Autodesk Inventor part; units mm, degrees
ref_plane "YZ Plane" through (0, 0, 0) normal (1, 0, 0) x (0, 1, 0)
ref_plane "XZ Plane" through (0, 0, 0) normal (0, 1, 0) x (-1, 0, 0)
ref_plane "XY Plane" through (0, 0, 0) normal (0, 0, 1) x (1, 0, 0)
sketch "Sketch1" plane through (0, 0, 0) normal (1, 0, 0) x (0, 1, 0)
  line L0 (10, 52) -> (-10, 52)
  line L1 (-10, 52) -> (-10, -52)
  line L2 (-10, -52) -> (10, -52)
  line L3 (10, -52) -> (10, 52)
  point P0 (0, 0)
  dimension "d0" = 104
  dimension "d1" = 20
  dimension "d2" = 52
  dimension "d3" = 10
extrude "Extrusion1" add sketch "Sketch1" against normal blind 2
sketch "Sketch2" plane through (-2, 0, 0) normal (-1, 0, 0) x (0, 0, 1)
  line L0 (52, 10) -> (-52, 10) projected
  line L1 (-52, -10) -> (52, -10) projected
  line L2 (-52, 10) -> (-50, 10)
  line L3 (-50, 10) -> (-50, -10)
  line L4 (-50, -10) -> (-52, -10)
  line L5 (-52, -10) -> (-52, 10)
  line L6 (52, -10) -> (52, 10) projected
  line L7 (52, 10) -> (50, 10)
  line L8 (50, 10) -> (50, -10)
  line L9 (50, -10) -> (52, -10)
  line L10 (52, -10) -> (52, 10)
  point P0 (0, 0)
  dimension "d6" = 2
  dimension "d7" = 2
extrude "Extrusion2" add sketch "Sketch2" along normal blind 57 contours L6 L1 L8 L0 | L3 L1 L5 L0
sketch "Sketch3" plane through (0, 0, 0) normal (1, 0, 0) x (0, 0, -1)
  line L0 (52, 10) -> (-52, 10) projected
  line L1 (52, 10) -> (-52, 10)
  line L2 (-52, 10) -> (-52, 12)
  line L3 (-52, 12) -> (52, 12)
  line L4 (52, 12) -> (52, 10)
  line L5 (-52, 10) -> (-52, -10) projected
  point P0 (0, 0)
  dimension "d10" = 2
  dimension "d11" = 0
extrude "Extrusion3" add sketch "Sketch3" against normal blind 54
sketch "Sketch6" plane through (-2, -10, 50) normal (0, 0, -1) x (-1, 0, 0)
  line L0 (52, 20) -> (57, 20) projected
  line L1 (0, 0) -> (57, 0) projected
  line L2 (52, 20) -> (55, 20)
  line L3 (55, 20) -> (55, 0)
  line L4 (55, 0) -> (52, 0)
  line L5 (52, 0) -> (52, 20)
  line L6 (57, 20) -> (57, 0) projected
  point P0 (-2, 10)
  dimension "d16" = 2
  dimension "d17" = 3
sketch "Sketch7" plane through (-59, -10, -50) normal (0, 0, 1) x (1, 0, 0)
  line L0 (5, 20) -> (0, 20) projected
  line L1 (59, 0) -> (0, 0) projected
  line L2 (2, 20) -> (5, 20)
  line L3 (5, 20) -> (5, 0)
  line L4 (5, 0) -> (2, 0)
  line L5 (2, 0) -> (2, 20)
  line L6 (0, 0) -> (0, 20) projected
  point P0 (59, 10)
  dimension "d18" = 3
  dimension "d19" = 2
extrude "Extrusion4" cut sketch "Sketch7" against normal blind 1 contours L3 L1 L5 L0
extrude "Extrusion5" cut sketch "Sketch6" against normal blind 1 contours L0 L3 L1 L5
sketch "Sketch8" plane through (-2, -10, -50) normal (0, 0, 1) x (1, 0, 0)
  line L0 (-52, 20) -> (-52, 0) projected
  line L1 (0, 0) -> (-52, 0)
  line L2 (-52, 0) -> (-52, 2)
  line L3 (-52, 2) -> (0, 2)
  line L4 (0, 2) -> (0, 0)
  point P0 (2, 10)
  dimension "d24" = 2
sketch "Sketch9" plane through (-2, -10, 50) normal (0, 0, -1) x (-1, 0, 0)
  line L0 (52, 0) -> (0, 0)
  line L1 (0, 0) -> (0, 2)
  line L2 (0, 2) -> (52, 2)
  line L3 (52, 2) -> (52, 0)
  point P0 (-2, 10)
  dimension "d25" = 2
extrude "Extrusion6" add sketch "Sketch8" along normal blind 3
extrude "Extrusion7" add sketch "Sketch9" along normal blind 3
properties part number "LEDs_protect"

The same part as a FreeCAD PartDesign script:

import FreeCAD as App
import Part
import Sketcher
Q = App.Units.Quantity


def add_polygon(sketch, points):
    """Adds a closed chain of lines whose ends are joined by coincident constraints."""
    first, n = sketch.GeometryCount, len(points)
    for a, b in zip(points, points[1:] + points[:1]):
        sketch.addGeometry(Part.LineSegment(App.Vector(*a, 0), App.Vector(*b, 0)), False)
    for i in range(n):
        sketch.addConstraint(Sketcher.Constraint("Coincident", first + i, 2, first + (i + 1) % n, 1))

doc = App.newDocument("Part")
params = doc.addObject("Spreadsheet::Sheet", "Params")
for row, (alias, value) in enumerate([
    ("sketch1_width", "20 mm"),
    ("sketch1_height", "104 mm"),
    ("pad1_length", "2 mm"),
    ("sketch2_height", "2 mm"),
    ("sketch2_width", "20 mm"),
    ("pad2_length", "57 mm"),
    ("sketch3_width", "2 mm"),
    ("sketch3_height", "104 mm"),
    ("pad3_length", "54 mm"),
    ("sketch4_width", "3 mm"),
    ("sketch4_height", "20 mm"),
    ("pocket1_length", "1 mm"),
    ("sketch5_width", "3 mm"),
    ("sketch5_height", "20 mm"),
    ("pocket2_length", "1 mm"),
    ("sketch6_height", "2 mm"),
    ("sketch6_width", "52 mm"),
    ("pad4_length", "3 mm"),
    ("sketch7_height", "2 mm"),
    ("sketch7_width", "52 mm"),
    ("pad5_length", "3 mm"),
], start=1):
    params.set(f"A{row}", alias)
    params.set(f"B{row}", "=" + value)
    params.setAlias(f"B{row}", alias)

body = doc.addObject("PartDesign::Body", "Body")

sketch1 = body.newObject("Sketcher::SketchObject", "Sketch")
sketch1.AttachmentSupport = (doc.getObject("YZ_Plane"), [""])
sketch1.MapMode = "FlatFace"
add_polygon(sketch1, [(10, -52), (10, 52), (-10, 52), (-10, -52)])
sketch1.addConstraint([
    Sketcher.Constraint("Vertical", 0),
    Sketcher.Constraint("Horizontal", 1),
    Sketcher.Constraint("Vertical", 2),
    Sketcher.Constraint("Horizontal", 3),
    Sketcher.Constraint("Symmetric", 0, 2, 2, 2, -1, 1),
    Sketcher.Constraint("DistanceX", 1, 2, 1, 1, Q("20 mm")),
    Sketcher.Constraint("DistanceY", 0, 1, 0, 2, Q("104 mm")),
])
sketch1.setExpression("Constraints[9]", "Params.sketch1_width")
sketch1.setExpression("Constraints[10]", "Params.sketch1_height")
pad1 = body.newObject("PartDesign::Pad", "Pad")
pad1.Profile = sketch1
pad1.setExpression("Length", "Params.pad1_length")
pad1.Reversed = True

sketch2 = body.newObject("Sketcher::SketchObject", "Sketch001")
sketch2.AttachmentSupport = (doc.getObject("YZ_Plane"), [""])
sketch2.MapMode = "FlatFace"
sketch2.AttachmentOffset = App.Placement(App.Vector(0, 0, -2), App.Rotation())
add_polygon(sketch2, [(-10, 52), (10, 52), (10, 50), (-10, 50)])
add_polygon(sketch2, [(-10, -50), (10, -50), (10, -52), (-10, -52)])
sketch2.addConstraint([
    Sketcher.Constraint("Horizontal", 0),
    Sketcher.Constraint("Vertical", 1),
    Sketcher.Constraint("Horizontal", 2),
    Sketcher.Constraint("Vertical", 3),
    Sketcher.Constraint("Horizontal", 4),
    Sketcher.Constraint("Vertical", 5),
    Sketcher.Constraint("Horizontal", 6),
    Sketcher.Constraint("Vertical", 7),
    Sketcher.Constraint("Symmetric", 2, 2, 4, 2, -1, 1),
    Sketcher.Constraint("Symmetric", 0, 2, 6, 2, -1, 1),
    Sketcher.Constraint("Vertical", 1, 2, 4, 2),
    Sketcher.Constraint("DistanceY", 1, 2, 1, 1, Q("2 mm")),
    Sketcher.Constraint("DistanceX", 0, 1, 0, 2, Q("20 mm")),
    Sketcher.Constraint("DistanceY", -1, 1, 0, 2, Q("52 mm")),
])
sketch2.setExpression("Constraints[19]", "Params.sketch2_height")
sketch2.setExpression("Constraints[20]", "Params.sketch2_width")
pad2 = body.newObject("PartDesign::Pad", "Pad001")
pad2.Profile = sketch2
pad2.setExpression("Length", "Params.pad2_length")
pad2.Reversed = True

sketch3 = body.newObject("Sketcher::SketchObject", "Sketch002")
sketch3.AttachmentSupport = (doc.getObject("YZ_Plane"), [""])
sketch3.MapMode = "FlatFace"
add_polygon(sketch3, [(10, 52), (10, -52), (12, -52), (12, 52)])
sketch3.addConstraint([
    Sketcher.Constraint("Vertical", 0),
    Sketcher.Constraint("Horizontal", 1),
    Sketcher.Constraint("Vertical", 2),
    Sketcher.Constraint("Horizontal", 3),
    Sketcher.Constraint("DistanceX", 1, 1, 1, 2, Q("2 mm")),
    Sketcher.Constraint("DistanceY", 0, 2, 0, 1, Q("104 mm")),
    Sketcher.Constraint("DistanceX", -1, 1, 0, 2, Q("10 mm")),
    Sketcher.Constraint("DistanceY", 0, 2, -1, 1, Q("52 mm")),
])
sketch3.setExpression("Constraints[8]", "Params.sketch3_width")
sketch3.setExpression("Constraints[9]", "Params.sketch3_height")
pad3 = body.newObject("PartDesign::Pad", "Pad002")
pad3.Profile = sketch3
pad3.setExpression("Length", "Params.pad3_length")
pad3.Reversed = True

sketch4 = body.newObject("Sketcher::SketchObject", "Sketch003")
sketch4.AttachmentSupport = (doc.getObject("XY_Plane"), [""])
sketch4.MapMode = "FlatFace"
sketch4.AttachmentOffset = App.Placement(App.Vector(0, 0, -50), App.Rotation())
add_polygon(sketch4, [(-54, -10), (-54, 10), (-57, 10), (-57, -10)])
sketch4.addConstraint([
    Sketcher.Constraint("Vertical", 0),
    Sketcher.Constraint("Horizontal", 1),
    Sketcher.Constraint("Vertical", 2),
    Sketcher.Constraint("Horizontal", 3),
    Sketcher.Constraint("DistanceX", 1, 2, 1, 1, Q("3 mm")),
    Sketcher.Constraint("DistanceY", 0, 1, 0, 2, Q("20 mm")),
    Sketcher.Constraint("DistanceX", 0, 2, -1, 1, Q("54 mm")),
    Sketcher.Constraint("DistanceY", -1, 1, 0, 2, Q("10 mm")),
])
sketch4.setExpression("Constraints[8]", "Params.sketch4_width")
sketch4.setExpression("Constraints[9]", "Params.sketch4_height")
pocket1 = body.newObject("PartDesign::Pocket", "Pocket")
pocket1.Profile = sketch4
pocket1.setExpression("Length", "Params.pocket1_length")

sketch5 = body.newObject("Sketcher::SketchObject", "Sketch004")
sketch5.AttachmentSupport = (doc.getObject("XY_Plane"), [""])
sketch5.MapMode = "FlatFace"
sketch5.AttachmentOffset = App.Placement(App.Vector(0, 0, 50), App.Rotation())
add_polygon(sketch5, [(-57, 10), (-54, 10), (-54, -10), (-57, -10)])
sketch5.addConstraint([
    Sketcher.Constraint("Horizontal", 0),
    Sketcher.Constraint("Vertical", 1),
    Sketcher.Constraint("Horizontal", 2),
    Sketcher.Constraint("Vertical", 3),
    Sketcher.Constraint("DistanceX", 0, 1, 0, 2, Q("3 mm")),
    Sketcher.Constraint("DistanceY", 1, 2, 1, 1, Q("20 mm")),
    Sketcher.Constraint("DistanceX", 0, 2, -1, 1, Q("54 mm")),
    Sketcher.Constraint("DistanceY", -1, 1, 0, 2, Q("10 mm")),
])
sketch5.setExpression("Constraints[8]", "Params.sketch5_width")
sketch5.setExpression("Constraints[9]", "Params.sketch5_height")
pocket2 = body.newObject("PartDesign::Pocket", "Pocket001")
pocket2.Profile = sketch5
pocket2.setExpression("Length", "Params.pocket2_length")
pocket2.Reversed = True

sketch6 = body.newObject("Sketcher::SketchObject", "Sketch005")
sketch6.AttachmentSupport = (doc.getObject("XY_Plane"), [""])
sketch6.MapMode = "FlatFace"
sketch6.AttachmentOffset = App.Placement(App.Vector(0, 0, -50), App.Rotation())
add_polygon(sketch6, [(-2, -8), (-54, -8), (-54, -10), (-2, -10)])
sketch6.addConstraint([
    Sketcher.Constraint("Horizontal", 0),
    Sketcher.Constraint("Vertical", 1),
    Sketcher.Constraint("Horizontal", 2),
    Sketcher.Constraint("Vertical", 3),
    Sketcher.Constraint("DistanceY", 1, 2, 1, 1, Q("2 mm")),
    Sketcher.Constraint("DistanceX", 2, 2, -1, 1, Q("2 mm")),
    Sketcher.Constraint("DistanceX", 0, 2, 0, 1, Q("52 mm")),
    Sketcher.Constraint("DistanceY", 0, 2, -1, 1, Q("8 mm")),
])
sketch6.setExpression("Constraints[8]", "Params.sketch6_height")
sketch6.setExpression("Constraints[10]", "Params.sketch6_width")
pad4 = body.newObject("PartDesign::Pad", "Pad003")
pad4.Profile = sketch6
pad4.setExpression("Length", "Params.pad4_length")

sketch7 = body.newObject("Sketcher::SketchObject", "Sketch006")
sketch7.AttachmentSupport = (doc.getObject("XY_Plane"), [""])
sketch7.MapMode = "FlatFace"
sketch7.AttachmentOffset = App.Placement(App.Vector(0, 0, 50), App.Rotation())
add_polygon(sketch7, [(-2, -10), (-54, -10), (-54, -8), (-2, -8)])
sketch7.addConstraint([
    Sketcher.Constraint("Horizontal", 0),
    Sketcher.Constraint("Vertical", 1),
    Sketcher.Constraint("Horizontal", 2),
    Sketcher.Constraint("Vertical", 3),
    Sketcher.Constraint("DistanceY", 1, 1, 1, 2, Q("2 mm")),
    Sketcher.Constraint("DistanceX", 2, 2, -1, 1, Q("2 mm")),
    Sketcher.Constraint("DistanceX", 0, 2, 0, 1, Q("52 mm")),
    Sketcher.Constraint("DistanceY", 0, 2, -1, 1, Q("10 mm")),
])
sketch7.setExpression("Constraints[8]", "Params.sketch7_height")
sketch7.setExpression("Constraints[10]", "Params.sketch7_width")
pad5 = body.newObject("PartDesign::Pad", "Pad004")
pad5.Profile = sketch7
pad5.setExpression("Length", "Params.pad5_length")
pad5.Reversed = True

doc.recompute()
